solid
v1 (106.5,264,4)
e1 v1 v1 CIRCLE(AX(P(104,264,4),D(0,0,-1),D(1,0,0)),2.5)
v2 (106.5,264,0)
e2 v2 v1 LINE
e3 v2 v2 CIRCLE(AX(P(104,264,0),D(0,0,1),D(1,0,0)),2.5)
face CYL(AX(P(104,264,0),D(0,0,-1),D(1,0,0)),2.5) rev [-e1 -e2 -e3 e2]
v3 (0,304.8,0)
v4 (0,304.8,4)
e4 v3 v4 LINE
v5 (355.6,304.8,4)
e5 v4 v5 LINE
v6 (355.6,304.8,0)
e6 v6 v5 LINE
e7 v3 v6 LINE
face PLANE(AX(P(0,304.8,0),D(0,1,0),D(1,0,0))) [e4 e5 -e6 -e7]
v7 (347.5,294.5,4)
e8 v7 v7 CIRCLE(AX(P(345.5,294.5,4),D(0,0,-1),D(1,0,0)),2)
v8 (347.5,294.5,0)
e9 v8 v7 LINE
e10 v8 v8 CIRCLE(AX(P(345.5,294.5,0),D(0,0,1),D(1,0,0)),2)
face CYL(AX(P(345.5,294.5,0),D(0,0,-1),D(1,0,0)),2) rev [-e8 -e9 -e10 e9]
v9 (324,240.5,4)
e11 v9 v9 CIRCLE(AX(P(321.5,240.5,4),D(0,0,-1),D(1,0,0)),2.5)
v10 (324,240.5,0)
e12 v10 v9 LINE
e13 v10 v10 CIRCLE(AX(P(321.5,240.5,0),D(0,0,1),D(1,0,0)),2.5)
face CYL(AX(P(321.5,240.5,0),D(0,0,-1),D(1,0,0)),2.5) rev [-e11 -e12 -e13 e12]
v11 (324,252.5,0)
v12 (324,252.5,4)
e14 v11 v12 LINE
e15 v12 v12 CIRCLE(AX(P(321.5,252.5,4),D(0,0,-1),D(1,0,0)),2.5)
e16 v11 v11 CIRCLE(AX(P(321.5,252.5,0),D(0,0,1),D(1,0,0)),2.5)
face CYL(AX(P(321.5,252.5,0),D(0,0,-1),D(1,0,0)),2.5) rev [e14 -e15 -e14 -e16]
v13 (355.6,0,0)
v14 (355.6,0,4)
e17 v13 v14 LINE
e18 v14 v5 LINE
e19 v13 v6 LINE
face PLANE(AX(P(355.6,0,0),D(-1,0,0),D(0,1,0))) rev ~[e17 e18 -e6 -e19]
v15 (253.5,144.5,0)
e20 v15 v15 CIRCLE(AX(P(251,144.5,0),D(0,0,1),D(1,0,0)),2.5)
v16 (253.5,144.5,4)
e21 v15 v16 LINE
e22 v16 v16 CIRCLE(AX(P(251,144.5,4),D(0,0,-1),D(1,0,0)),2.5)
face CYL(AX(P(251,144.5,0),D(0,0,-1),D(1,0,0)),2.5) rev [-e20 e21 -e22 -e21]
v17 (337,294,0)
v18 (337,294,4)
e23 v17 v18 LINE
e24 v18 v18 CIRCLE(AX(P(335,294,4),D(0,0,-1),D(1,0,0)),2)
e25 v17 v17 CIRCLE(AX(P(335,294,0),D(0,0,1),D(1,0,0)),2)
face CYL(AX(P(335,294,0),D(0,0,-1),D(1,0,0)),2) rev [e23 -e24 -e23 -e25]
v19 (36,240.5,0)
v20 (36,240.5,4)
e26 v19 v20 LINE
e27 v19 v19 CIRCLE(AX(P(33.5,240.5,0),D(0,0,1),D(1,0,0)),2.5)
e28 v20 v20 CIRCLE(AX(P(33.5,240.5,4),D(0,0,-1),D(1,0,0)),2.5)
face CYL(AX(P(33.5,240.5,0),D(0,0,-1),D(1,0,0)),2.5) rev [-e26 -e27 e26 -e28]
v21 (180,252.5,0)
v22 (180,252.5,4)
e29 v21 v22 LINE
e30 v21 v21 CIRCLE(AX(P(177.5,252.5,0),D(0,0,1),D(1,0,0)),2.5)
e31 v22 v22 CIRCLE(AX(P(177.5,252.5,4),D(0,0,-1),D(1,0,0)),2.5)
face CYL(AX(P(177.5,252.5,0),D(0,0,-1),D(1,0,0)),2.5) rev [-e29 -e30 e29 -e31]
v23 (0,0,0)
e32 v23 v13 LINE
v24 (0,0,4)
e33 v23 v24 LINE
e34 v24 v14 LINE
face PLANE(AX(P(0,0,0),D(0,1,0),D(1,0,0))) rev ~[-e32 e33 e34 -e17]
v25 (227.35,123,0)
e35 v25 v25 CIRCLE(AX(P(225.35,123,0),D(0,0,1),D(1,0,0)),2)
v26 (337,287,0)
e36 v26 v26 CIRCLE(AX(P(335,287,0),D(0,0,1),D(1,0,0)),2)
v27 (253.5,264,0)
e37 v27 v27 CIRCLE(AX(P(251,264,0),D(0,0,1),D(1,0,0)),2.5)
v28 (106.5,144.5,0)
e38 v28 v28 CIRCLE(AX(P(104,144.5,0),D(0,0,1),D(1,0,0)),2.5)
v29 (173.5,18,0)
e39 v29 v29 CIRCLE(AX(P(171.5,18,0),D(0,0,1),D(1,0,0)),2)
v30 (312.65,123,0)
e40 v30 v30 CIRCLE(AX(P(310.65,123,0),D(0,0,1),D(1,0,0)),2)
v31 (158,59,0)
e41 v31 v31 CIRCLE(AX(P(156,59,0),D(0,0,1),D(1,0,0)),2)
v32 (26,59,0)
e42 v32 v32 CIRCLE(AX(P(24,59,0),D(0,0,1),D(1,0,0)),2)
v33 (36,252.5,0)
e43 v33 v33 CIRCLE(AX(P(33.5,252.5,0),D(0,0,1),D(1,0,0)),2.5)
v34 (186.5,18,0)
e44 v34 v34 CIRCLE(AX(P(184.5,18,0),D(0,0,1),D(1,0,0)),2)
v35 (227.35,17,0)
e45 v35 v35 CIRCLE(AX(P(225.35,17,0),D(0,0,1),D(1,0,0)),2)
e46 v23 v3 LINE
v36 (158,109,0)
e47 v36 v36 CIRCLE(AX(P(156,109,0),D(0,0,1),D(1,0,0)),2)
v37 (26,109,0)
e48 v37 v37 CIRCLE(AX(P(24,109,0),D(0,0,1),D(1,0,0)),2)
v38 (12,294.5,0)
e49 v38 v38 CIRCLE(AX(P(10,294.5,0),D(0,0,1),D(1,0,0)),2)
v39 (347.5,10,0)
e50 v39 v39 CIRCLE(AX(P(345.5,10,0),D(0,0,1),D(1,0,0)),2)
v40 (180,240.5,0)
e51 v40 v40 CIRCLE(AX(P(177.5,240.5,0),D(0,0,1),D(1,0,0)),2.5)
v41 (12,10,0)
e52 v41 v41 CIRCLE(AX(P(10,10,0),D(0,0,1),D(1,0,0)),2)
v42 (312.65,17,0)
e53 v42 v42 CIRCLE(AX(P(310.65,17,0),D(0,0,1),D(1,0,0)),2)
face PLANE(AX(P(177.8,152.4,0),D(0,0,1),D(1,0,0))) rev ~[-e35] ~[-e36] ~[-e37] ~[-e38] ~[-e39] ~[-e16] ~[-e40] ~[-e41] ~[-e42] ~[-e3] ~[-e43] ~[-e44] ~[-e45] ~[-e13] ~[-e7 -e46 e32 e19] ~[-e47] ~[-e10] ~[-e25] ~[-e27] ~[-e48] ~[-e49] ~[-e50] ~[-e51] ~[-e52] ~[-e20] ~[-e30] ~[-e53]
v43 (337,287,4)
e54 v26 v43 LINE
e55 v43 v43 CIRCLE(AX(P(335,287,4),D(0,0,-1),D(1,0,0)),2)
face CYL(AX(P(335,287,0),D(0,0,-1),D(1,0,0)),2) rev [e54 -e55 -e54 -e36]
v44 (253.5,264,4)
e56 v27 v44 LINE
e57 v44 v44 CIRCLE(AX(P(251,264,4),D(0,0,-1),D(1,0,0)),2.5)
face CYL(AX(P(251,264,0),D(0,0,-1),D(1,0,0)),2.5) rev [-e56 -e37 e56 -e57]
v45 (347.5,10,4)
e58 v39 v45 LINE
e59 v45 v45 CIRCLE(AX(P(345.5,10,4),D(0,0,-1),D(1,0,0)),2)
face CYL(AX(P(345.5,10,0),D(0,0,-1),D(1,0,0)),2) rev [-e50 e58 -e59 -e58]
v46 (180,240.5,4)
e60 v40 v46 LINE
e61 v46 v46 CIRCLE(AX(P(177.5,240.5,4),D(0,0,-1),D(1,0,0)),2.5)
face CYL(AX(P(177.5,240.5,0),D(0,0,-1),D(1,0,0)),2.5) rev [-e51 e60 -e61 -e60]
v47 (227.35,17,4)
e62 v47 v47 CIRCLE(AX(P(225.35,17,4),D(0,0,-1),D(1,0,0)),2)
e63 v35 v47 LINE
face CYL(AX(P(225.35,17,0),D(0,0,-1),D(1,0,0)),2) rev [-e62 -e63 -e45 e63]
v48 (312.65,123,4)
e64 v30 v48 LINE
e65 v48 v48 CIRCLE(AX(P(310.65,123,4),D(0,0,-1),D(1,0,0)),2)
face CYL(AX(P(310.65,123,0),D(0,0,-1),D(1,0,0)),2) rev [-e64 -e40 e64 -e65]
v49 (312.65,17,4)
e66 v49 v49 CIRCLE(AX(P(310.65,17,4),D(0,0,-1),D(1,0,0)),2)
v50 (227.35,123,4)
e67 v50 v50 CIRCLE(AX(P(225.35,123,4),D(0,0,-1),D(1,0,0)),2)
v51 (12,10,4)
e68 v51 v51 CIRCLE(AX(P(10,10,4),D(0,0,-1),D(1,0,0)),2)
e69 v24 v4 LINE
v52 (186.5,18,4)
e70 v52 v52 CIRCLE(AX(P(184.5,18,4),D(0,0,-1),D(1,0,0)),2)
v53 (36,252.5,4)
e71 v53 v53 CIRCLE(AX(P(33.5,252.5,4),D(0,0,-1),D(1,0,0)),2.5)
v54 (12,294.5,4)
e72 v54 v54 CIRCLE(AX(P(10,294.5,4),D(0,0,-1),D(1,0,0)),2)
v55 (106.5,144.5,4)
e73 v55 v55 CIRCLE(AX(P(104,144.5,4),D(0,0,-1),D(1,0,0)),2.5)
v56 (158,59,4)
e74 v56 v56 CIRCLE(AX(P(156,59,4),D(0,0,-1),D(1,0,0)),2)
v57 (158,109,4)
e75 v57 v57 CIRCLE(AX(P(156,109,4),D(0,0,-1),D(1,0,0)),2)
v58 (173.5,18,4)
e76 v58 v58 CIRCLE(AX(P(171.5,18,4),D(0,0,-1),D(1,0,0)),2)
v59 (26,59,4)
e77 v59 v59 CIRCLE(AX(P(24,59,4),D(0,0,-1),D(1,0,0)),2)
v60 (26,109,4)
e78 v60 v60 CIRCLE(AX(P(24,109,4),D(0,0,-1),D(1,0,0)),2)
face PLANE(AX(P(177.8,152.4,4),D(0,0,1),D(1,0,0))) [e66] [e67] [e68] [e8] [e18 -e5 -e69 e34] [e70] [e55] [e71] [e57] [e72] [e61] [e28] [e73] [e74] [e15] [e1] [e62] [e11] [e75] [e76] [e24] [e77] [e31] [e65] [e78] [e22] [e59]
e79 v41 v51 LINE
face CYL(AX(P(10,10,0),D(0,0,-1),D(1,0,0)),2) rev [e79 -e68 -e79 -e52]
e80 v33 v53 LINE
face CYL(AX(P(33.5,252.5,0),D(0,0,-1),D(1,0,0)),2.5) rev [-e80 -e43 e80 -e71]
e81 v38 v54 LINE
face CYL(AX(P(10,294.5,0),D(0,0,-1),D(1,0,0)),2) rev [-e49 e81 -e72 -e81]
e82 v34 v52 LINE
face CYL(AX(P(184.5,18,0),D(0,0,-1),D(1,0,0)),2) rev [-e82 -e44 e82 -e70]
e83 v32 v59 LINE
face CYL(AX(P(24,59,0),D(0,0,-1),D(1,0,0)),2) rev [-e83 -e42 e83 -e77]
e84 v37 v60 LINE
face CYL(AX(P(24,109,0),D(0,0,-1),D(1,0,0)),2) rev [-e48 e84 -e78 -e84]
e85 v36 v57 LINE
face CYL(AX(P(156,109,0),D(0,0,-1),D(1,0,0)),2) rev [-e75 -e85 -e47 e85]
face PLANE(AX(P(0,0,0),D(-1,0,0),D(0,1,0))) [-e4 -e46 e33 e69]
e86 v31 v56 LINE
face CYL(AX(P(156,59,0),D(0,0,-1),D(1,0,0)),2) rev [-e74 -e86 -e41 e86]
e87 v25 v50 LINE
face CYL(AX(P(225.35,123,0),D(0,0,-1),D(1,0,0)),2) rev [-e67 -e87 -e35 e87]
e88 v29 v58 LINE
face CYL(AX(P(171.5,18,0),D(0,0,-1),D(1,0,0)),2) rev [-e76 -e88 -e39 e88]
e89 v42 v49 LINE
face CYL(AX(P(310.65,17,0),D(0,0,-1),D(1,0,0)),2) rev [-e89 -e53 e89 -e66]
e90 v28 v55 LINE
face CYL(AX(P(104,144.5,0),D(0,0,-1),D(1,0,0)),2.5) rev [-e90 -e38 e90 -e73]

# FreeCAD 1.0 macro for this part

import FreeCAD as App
import Part
import Sketcher

V = App.Vector

doc = App.newDocument("Part")
body = doc.addObject("PartDesign::Body", "Body")

# Sketch on XY plane
sketch1 = body.newObject("Sketcher::SketchObject", "Sketch")
sketch1.AttachmentSupport = (doc.getObject("XY_Plane"), [""])
sketch1.MapMode = "FlatFace"
sketch1.addGeometry(Part.Circle(V(335, 287, 0), V(0, 0, 1), 2), False)
sketch1.addConstraint(Sketcher.Constraint("Diameter", 0, 4.0))
sketch1.addConstraint(Sketcher.Constraint("DistanceX", -1, 1, 0, 3, 335.0))
sketch1.addConstraint(Sketcher.Constraint("DistanceY", -1, 1, 0, 3, 287.0))
pad1 = body.newObject("PartDesign::Pad", "Pad")
pad1.Profile = sketch1
pad1.Length = 10
body2 = doc.addObject("PartDesign::Body", "Body001")
body2.AllowCompound = True

# Sketch on XY plane
sketch2 = body2.newObject("Sketcher::SketchObject", "Sketch001")
sketch2.AttachmentSupport = (doc.getObject("XY_Plane001"), [""])
sketch2.MapMode = "FlatFace"
sketch2.addGeometry(Part.Circle(V(335, 294, 0), V(0, 0, 1), 2), False)
sketch2.addConstraint(Sketcher.Constraint("Diameter", 0, 4.0))
sketch2.addConstraint(Sketcher.Constraint("DistanceX", -1, 1, 0, 3, 335.0))
sketch2.addConstraint(Sketcher.Constraint("DistanceY", -1, 1, 0, 3, 294.0))
pad2 = body2.newObject("PartDesign::Pad", "Pad001")
pad2.Profile = sketch2
pad2.Length = 10
doc.recompute()

boolean = body2.newObject("PartDesign::Boolean", "Boolean")
boolean.Type = "Fuse"
boolean.addObjects([body])
body3 = doc.addObject("PartDesign::Body", "Body002")

# Sketch on XY plane
sketch3 = body3.newObject("Sketcher::SketchObject", "Sketch002")
sketch3.AttachmentSupport = (doc.getObject("XY_Plane002"), [""])
sketch3.MapMode = "FlatFace"
sketch3.addGeometry(Part.Circle(V(10, 294.5, 0), V(0, 0, 1), 2), False)
sketch3.addConstraint(Sketcher.Constraint("Diameter", 0, 4.0))
sketch3.addConstraint(Sketcher.Constraint("DistanceX", -1, 1, 0, 3, 10.0))
sketch3.addConstraint(Sketcher.Constraint("DistanceY", -1, 1, 0, 3, 294.5))
pad3 = body3.newObject("PartDesign::Pad", "Pad002")
pad3.Profile = sketch3
pad3.Length = 10
body4 = doc.addObject("PartDesign::Body", "Body003")

# Sketch on XY plane
sketch4 = body4.newObject("Sketcher::SketchObject", "Sketch003")
sketch4.AttachmentSupport = (doc.getObject("XY_Plane003"), [""])
sketch4.MapMode = "FlatFace"
sketch4.addGeometry(Part.Circle(V(345.5, 294.5, 0), V(0, 0, 1), 2), False)
sketch4.addConstraint(Sketcher.Constraint("Diameter", 0, 4.0))
sketch4.addConstraint(Sketcher.Constraint("DistanceX", -1, 1, 0, 3, 345.5))
sketch4.addConstraint(Sketcher.Constraint("DistanceY", -1, 1, 0, 3, 294.5))
pad4 = body4.newObject("PartDesign::Pad", "Pad003")
pad4.Profile = sketch4
pad4.Length = 10
body5 = doc.addObject("PartDesign::Body", "Body004")

# Sketch on XY plane
sketch5 = body5.newObject("Sketcher::SketchObject", "Sketch004")
sketch5.AttachmentSupport = (doc.getObject("XY_Plane004"), [""])
sketch5.MapMode = "FlatFace"
sketch5.addGeometry(Part.Circle(V(345.5, 10, 0), V(0, 0, 1), 2), False)
sketch5.addConstraint(Sketcher.Constraint("Diameter", 0, 4.0))
sketch5.addConstraint(Sketcher.Constraint("DistanceY", -1, 1, 0, 3, 10.0))
sketch5.addConstraint(Sketcher.Constraint("DistanceX", -1, 1, 0, 3, 345.5))
pad5 = body5.newObject("PartDesign::Pad", "Pad004")
pad5.Profile = sketch5
pad5.Length = 10
body6 = doc.addObject("PartDesign::Body", "Body005")
body6.AllowCompound = True

# Sketch on XY plane
sketch6 = body6.newObject("Sketcher::SketchObject", "Sketch005")
sketch6.AttachmentSupport = (doc.getObject("XY_Plane005"), [""])
sketch6.MapMode = "FlatFace"
sketch6.addGeometry(Part.Circle(V(10, 10, 0), V(0, 0, 1), 2), False)
sketch6.addConstraint(Sketcher.Constraint("Diameter", 0, 4.0))
sketch6.addConstraint(Sketcher.Constraint("DistanceX", -1, 1, 0, 3, 10.0))
sketch6.addConstraint(Sketcher.Constraint("DistanceY", -1, 1, 0, 3, 10.0))
pad6 = body6.newObject("PartDesign::Pad", "Pad005")
pad6.Profile = sketch6
pad6.Length = 10
doc.recompute()

boolean2 = body6.newObject("PartDesign::Boolean", "Boolean001")
boolean2.Type = "Fuse"
boolean2.addObjects([body3])
doc.recompute()

boolean3 = body6.newObject("PartDesign::Boolean", "Boolean002")
boolean3.Type = "Fuse"
boolean3.addObjects([body4])
doc.recompute()

boolean4 = body6.newObject("PartDesign::Boolean", "Boolean003")
boolean4.Type = "Fuse"
boolean4.addObjects([body5])
body7 = doc.addObject("PartDesign::Body", "Body006")

# Sketch on XY plane
sketch7 = body7.newObject("Sketcher::SketchObject", "Sketch006")
sketch7.AttachmentSupport = (doc.getObject("XY_Plane006"), [""])
sketch7.MapMode = "FlatFace"
sketch7.addGeometry(Part.Circle(V(184.5, 18, 0), V(0, 0, 1), 2), False)
sketch7.addConstraint(Sketcher.Constraint("Diameter", 0, 4.0))
sketch7.addConstraint(Sketcher.Constraint("DistanceY", -1, 1, 0, 3, 18.0))
sketch7.addConstraint(Sketcher.Constraint("DistanceX", -1, 1, 0, 3, 184.5))
pad7 = body7.newObject("PartDesign::Pad", "Pad006")
pad7.Profile = sketch7
pad7.Length = 10
body8 = doc.addObject("PartDesign::Body", "Body007")

# Sketch on XY plane
sketch8 = body8.newObject("Sketcher::SketchObject", "Sketch007")
sketch8.AttachmentSupport = (doc.getObject("XY_Plane007"), [""])
sketch8.MapMode = "FlatFace"
sketch8.addGeometry(Part.Circle(V(156, 59, 0), V(0, 0, 1), 2), False)
sketch8.addConstraint(Sketcher.Constraint("Diameter", 0, 4.0))
sketch8.addConstraint(Sketcher.Constraint("DistanceX", -1, 1, 0, 3, 156.0))
sketch8.addConstraint(Sketcher.Constraint("DistanceY", -1, 1, 0, 3, 59.0))
pad8 = body8.newObject("PartDesign::Pad", "Pad007")
pad8.Profile = sketch8
pad8.Length = 10
body9 = doc.addObject("PartDesign::Body", "Body008")

# Sketch on XY plane
sketch9 = body9.newObject("Sketcher::SketchObject", "Sketch008")
sketch9.AttachmentSupport = (doc.getObject("XY_Plane008"), [""])
sketch9.MapMode = "FlatFace"
sketch9.addGeometry(Part.Circle(V(225.3, 17, 0), V(0, 0, 1), 2), False)
sketch9.addConstraint(Sketcher.Constraint("Diameter", 0, 4.0))
sketch9.addConstraint(Sketcher.Constraint("DistanceY", -1, 1, 0, 3, 17.0))
sketch9.addConstraint(Sketcher.Constraint("DistanceX", -1, 1, 0, 3, 225.35))
pad9 = body9.newObject("PartDesign::Pad", "Pad008")
pad9.Profile = sketch9
pad9.Length = 10
body10 = doc.addObject("PartDesign::Body", "Body009")

# Sketch on XY plane
sketch10 = body10.newObject("Sketcher::SketchObject", "Sketch009")
sketch10.AttachmentSupport = (doc.getObject("XY_Plane009"), [""])
sketch10.MapMode = "FlatFace"
sketch10.addGeometry(Part.Circle(V(24, 109, 0), V(0, 0, 1), 2), False)
sketch10.addConstraint(Sketcher.Constraint("Diameter", 0, 4.0))
sketch10.addConstraint(Sketcher.Constraint("DistanceX", -1, 1, 0, 3, 24.0))
sketch10.addConstraint(Sketcher.Constraint("DistanceY", -1, 1, 0, 3, 109.0))
pad10 = body10.newObject("PartDesign::Pad", "Pad009")
pad10.Profile = sketch10
pad10.Length = 10
body11 = doc.addObject("PartDesign::Body", "Body010")

# Sketch on XY plane
sketch11 = body11.newObject("Sketcher::SketchObject", "Sketch010")
sketch11.AttachmentSupport = (doc.getObject("XY_Plane010"), [""])
sketch11.MapMode = "FlatFace"
sketch11.addGeometry(Part.Circle(V(156, 109, 0), V(0, 0, 1), 2), False)
sketch11.addConstraint(Sketcher.Constraint("Diameter", 0, 4.0))
sketch11.addConstraint(Sketcher.Constraint("DistanceX", -1, 1, 0, 3, 156.0))
sketch11.addConstraint(Sketcher.Constraint("DistanceY", -1, 1, 0, 3, 109.0))
pad11 = body11.newObject("PartDesign::Pad", "Pad010")
pad11.Profile = sketch11
pad11.Length = 10
body12 = doc.addObject("PartDesign::Body", "Body011")

# Sketch on XY plane
sketch12 = body12.newObject("Sketcher::SketchObject", "Sketch011")
sketch12.AttachmentSupport = (doc.getObject("XY_Plane011"), [""])
sketch12.MapMode = "FlatFace"
sketch12.addGeometry(Part.Circle(V(225.3, 123, 0), V(0, 0, 1), 2), False)
sketch12.addConstraint(Sketcher.Constraint("Diameter", 0, 4.0))
sketch12.addConstraint(Sketcher.Constraint("DistanceY", -1, 1, 0, 3, 123.0))
sketch12.addConstraint(Sketcher.Constraint("DistanceX", -1, 1, 0, 3, 225.35))
pad12 = body12.newObject("PartDesign::Pad", "Pad011")
pad12.Profile = sketch12
pad12.Length = 10
body13 = doc.addObject("PartDesign::Body", "Body012")

# Sketch on XY plane
sketch13 = body13.newObject("Sketcher::SketchObject", "Sketch012")
sketch13.AttachmentSupport = (doc.getObject("XY_Plane012"), [""])
sketch13.MapMode = "FlatFace"
sketch13.addGeometry(Part.Circle(V(310.6, 17, 0), V(0, 0, 1), 2), False)
sketch13.addConstraint(Sketcher.Constraint("Diameter", 0, 4.0))
sketch13.addConstraint(Sketcher.Constraint("DistanceY", -1, 1, 0, 3, 17.0))
sketch13.addConstraint(Sketcher.Constraint("DistanceX", -1, 1, 0, 3, 310.65))
pad13 = body13.newObject("PartDesign::Pad", "Pad012")
pad13.Profile = sketch13
pad13.Length = 10
body14 = doc.addObject("PartDesign::Body", "Body013")

# Sketch on XY plane
sketch14 = body14.newObject("Sketcher::SketchObject", "Sketch013")
sketch14.AttachmentSupport = (doc.getObject("XY_Plane013"), [""])
sketch14.MapMode = "FlatFace"
sketch14.addGeometry(Part.Circle(V(310.6, 123, 0), V(0, 0, 1), 2), False)
sketch14.addConstraint(Sketcher.Constraint("Diameter", 0, 4.0))
sketch14.addConstraint(Sketcher.Constraint("DistanceY", -1, 1, 0, 3, 123.0))
sketch14.addConstraint(Sketcher.Constraint("DistanceX", -1, 1, 0, 3, 310.65))
pad14 = body14.newObject("PartDesign::Pad", "Pad013")
pad14.Profile = sketch14
pad14.Length = 10
body15 = doc.addObject("PartDesign::Body", "Body014")

# Sketch on XY plane
sketch15 = body15.newObject("Sketcher::SketchObject", "Sketch014")
sketch15.AttachmentSupport = (doc.getObject("XY_Plane014"), [""])
sketch15.MapMode = "FlatFace"
sketch15.addGeometry(Part.Circle(V(171.5, 18, 0), V(0, 0, 1), 2), False)
sketch15.addConstraint(Sketcher.Constraint("Diameter", 0, 4.0))
sketch15.addConstraint(Sketcher.Constraint("DistanceY", -1, 1, 0, 3, 18.0))
sketch15.addConstraint(Sketcher.Constraint("DistanceX", -1, 1, 0, 3, 171.5))
pad15 = body15.newObject("PartDesign::Pad", "Pad014")
pad15.Profile = sketch15
pad15.Length = 10
body16 = doc.addObject("PartDesign::Body", "Body015")
body16.AllowCompound = True

# Sketch on XY plane
sketch16 = body16.newObject("Sketcher::SketchObject", "Sketch015")
sketch16.AttachmentSupport = (doc.getObject("XY_Plane015"), [""])
sketch16.MapMode = "FlatFace"
sketch16.addGeometry(Part.Circle(V(24, 59, 0), V(0, 0, 1), 2), False)
sketch16.addConstraint(Sketcher.Constraint("Diameter", 0, 4.0))
sketch16.addConstraint(Sketcher.Constraint("DistanceX", -1, 1, 0, 3, 24.0))
sketch16.addConstraint(Sketcher.Constraint("DistanceY", -1, 1, 0, 3, 59.0))
pad16 = body16.newObject("PartDesign::Pad", "Pad015")
pad16.Profile = sketch16
pad16.Length = 10
doc.recompute()

boolean5 = body16.newObject("PartDesign::Boolean", "Boolean004")
boolean5.Type = "Fuse"
boolean5.addObjects([body7])
doc.recompute()

boolean6 = body16.newObject("PartDesign::Boolean", "Boolean005")
boolean6.Type = "Fuse"
boolean6.addObjects([body8])
doc.recompute()

boolean7 = body16.newObject("PartDesign::Boolean", "Boolean006")
boolean7.Type = "Fuse"
boolean7.addObjects([body9])
doc.recompute()

boolean8 = body16.newObject("PartDesign::Boolean", "Boolean007")
boolean8.Type = "Fuse"
boolean8.addObjects([body10])
doc.recompute()

boolean9 = body16.newObject("PartDesign::Boolean", "Boolean008")
boolean9.Type = "Fuse"
boolean9.addObjects([body11])
doc.recompute()

boolean10 = body16.newObject("PartDesign::Boolean", "Boolean009")
boolean10.Type = "Fuse"
boolean10.addObjects([body12])
doc.recompute()

boolean11 = body16.newObject("PartDesign::Boolean", "Boolean010")
boolean11.Type = "Fuse"
boolean11.addObjects([body13])
doc.recompute()

boolean12 = body16.newObject("PartDesign::Boolean", "Boolean011")
boolean12.Type = "Fuse"
boolean12.addObjects([body14])
doc.recompute()

boolean13 = body16.newObject("PartDesign::Boolean", "Boolean012")
boolean13.Type = "Fuse"
boolean13.addObjects([body15])
body17 = doc.addObject("PartDesign::Body", "Body016")

# Sketch on XY plane
sketch17 = body17.newObject("Sketcher::SketchObject", "Sketch016")
sketch17.AttachmentSupport = (doc.getObject("XY_Plane016"), [""])
sketch17.MapMode = "FlatFace"
sketch17.addGeometry(Part.Circle(V(105, 264, 0), V(0, 0, 1), 2.5), False)
sketch17.addConstraint(Sketcher.Constraint("Diameter", 0, 5.0))
sketch17.addConstraint(Sketcher.Constraint("DistanceX", -1, 1, 0, 3, 105.0))
sketch17.addConstraint(Sketcher.Constraint("DistanceY", -1, 1, 0, 3, 264.0))
pad17 = body17.newObject("PartDesign::Pad", "Pad016")
pad17.Profile = sketch17
pad17.Length = 14
body18 = doc.addObject("PartDesign::Body", "Body017")
body18.AllowCompound = True

# Sketch on XY plane
sketch18 = body18.newObject("Sketcher::SketchObject", "Sketch017")
sketch18.AttachmentSupport = (doc.getObject("XY_Plane017"), [""])
sketch18.MapMode = "FlatFace"
sketch18.addGeometry(Part.Circle(V(105, 144.5, 0), V(0, 0, 1), 2.5), False)
sketch18.addConstraint(Sketcher.Constraint("Diameter", 0, 5.0))
sketch18.addConstraint(Sketcher.Constraint("DistanceX", -1, 1, 0, 3, 105.0))
sketch18.addConstraint(Sketcher.Constraint("DistanceY", -1, 1, 0, 3, 144.5))
pad18 = body18.newObject("PartDesign::Pad", "Pad017")
pad18.Profile = sketch18
pad18.Length = 14
doc.recompute()

boolean14 = body18.newObject("PartDesign::Boolean", "Boolean013")
boolean14.Type = "Fuse"
boolean14.addObjects([body17])
body19 = doc.addObject("PartDesign::Body", "Body018")
body19.AllowCompound = True
doc.recompute()

body18.Placement = App.Placement(V(146, 0, 0), App.Rotation(V(0, 0, 1), 0))
boolean15 = body19.newObject("PartDesign::Boolean", "Boolean014")
boolean15.Type = "Fuse"
boolean15.addObjects([body18])
body20 = doc.addObject("PartDesign::Body", "Body019")

# Sketch on XY plane
sketch19 = body20.newObject("Sketcher::SketchObject", "Sketch018")
sketch19.AttachmentSupport = (doc.getObject("XY_Plane019"), [""])
sketch19.MapMode = "FlatFace"
sketch19.addGeometry(Part.Circle(V(105, 264, 0), V(0, 0, 1), 2.5), False)
sketch19.addConstraint(Sketcher.Constraint("Diameter", 0, 5.0))
sketch19.addConstraint(Sketcher.Constraint("DistanceX", -1, 1, 0, 3, 105.0))
sketch19.addConstraint(Sketcher.Constraint("DistanceY", -1, 1, 0, 3, 264.0))
pad19 = body20.newObject("PartDesign::Pad", "Pad018")
pad19.Profile = sketch19
pad19.Length = 14
body21 = doc.addObject("PartDesign::Body", "Body020")
body21.AllowCompound = True

# Sketch on XY plane
sketch20 = body21.newObject("Sketcher::SketchObject", "Sketch019")
sketch20.AttachmentSupport = (doc.getObject("XY_Plane020"), [""])
sketch20.MapMode = "FlatFace"
sketch20.addGeometry(Part.Circle(V(105, 144.5, 0), V(0, 0, 1), 2.5), False)
sketch20.addConstraint(Sketcher.Constraint("Diameter", 0, 5.0))
sketch20.addConstraint(Sketcher.Constraint("DistanceX", -1, 1, 0, 3, 105.0))
sketch20.addConstraint(Sketcher.Constraint("DistanceY", -1, 1, 0, 3, 144.5))
pad20 = body21.newObject("PartDesign::Pad", "Pad019")
pad20.Profile = sketch20
pad20.Length = 14
doc.recompute()

boolean16 = body21.newObject("PartDesign::Boolean", "Boolean015")
boolean16.Type = "Fuse"
boolean16.addObjects([body20])
body22 = doc.addObject("PartDesign::Body", "Body021")
body22.AllowCompound = True
doc.recompute()

body21.Placement = App.Placement(V(-1, 0, 0), App.Rotation(V(0, 0, 1), 0))
boolean17 = body22.newObject("PartDesign::Boolean", "Boolean016")
boolean17.Type = "Fuse"
boolean17.addObjects([body21])
doc.recompute()

boolean18 = body22.newObject("PartDesign::Boolean", "Boolean017")
boolean18.Type = "Fuse"
boolean18.addObjects([body19])
body23 = doc.addObject("PartDesign::Body", "Body022")

# Sketch on XY plane
sketch21 = body23.newObject("Sketcher::SketchObject", "Sketch020")
sketch21.AttachmentSupport = (doc.getObject("XY_Plane022"), [""])
sketch21.MapMode = "FlatFace"
sketch21.addGeometry(Part.Circle(V(177.5, 240.5, 0), V(0, 0, 1), 2.5), False)
sketch21.addConstraint(Sketcher.Constraint("Diameter", 0, 5.0))
sketch21.addConstraint(Sketcher.Constraint("DistanceX", -1, 1, 0, 3, 177.5))
sketch21.addConstraint(Sketcher.Constraint("DistanceY", -1, 1, 0, 3, 240.5))
pad21 = body23.newObject("PartDesign::Pad", "Pad020")
pad21.Profile = sketch21
pad21.Length = 10
body24 = doc.addObject("PartDesign::Body", "Body023")
body24.AllowCompound = True

# Sketch on XY plane
sketch22 = body24.newObject("Sketcher::SketchObject", "Sketch021")
sketch22.AttachmentSupport = (doc.getObject("XY_Plane023"), [""])
sketch22.MapMode = "FlatFace"
sketch22.addGeometry(Part.Circle(V(177.5, 252.5, 0), V(0, 0, 1), 2.5), False)
sketch22.addConstraint(Sketcher.Constraint("Diameter", 0, 5.0))
sketch22.addConstraint(Sketcher.Constraint("DistanceX", -1, 1, 0, 3, 177.5))
sketch22.addConstraint(Sketcher.Constraint("DistanceY", -1, 1, 0, 3, 252.5))
pad22 = body24.newObject("PartDesign::Pad", "Pad021")
pad22.Profile = sketch22
pad22.Length = 10
doc.recompute()

boolean19 = body24.newObject("PartDesign::Boolean", "Boolean018")
boolean19.Type = "Fuse"
boolean19.addObjects([body23])
body25 = doc.addObject("PartDesign::Body", "Body024")
body25.AllowCompound = True
doc.recompute()

body24.Placement = App.Placement(V(144, 0, 0), App.Rotation(V(0, 0, 1), 0))
boolean20 = body25.newObject("PartDesign::Boolean", "Boolean019")
boolean20.Type = "Fuse"
boolean20.addObjects([body24])
body26 = doc.addObject("PartDesign::Body", "Body025")

# Sketch on XY plane
sketch23 = body26.newObject("Sketcher::SketchObject", "Sketch022")
sketch23.AttachmentSupport = (doc.getObject("XY_Plane025"), [""])
sketch23.MapMode = "FlatFace"
sketch23.addGeometry(Part.Circle(V(177.5, 240.5, 0), V(0, 0, 1), 2.5), False)
sketch23.addConstraint(Sketcher.Constraint("Diameter", 0, 5.0))
sketch23.addConstraint(Sketcher.Constraint("DistanceX", -1, 1, 0, 3, 177.5))
sketch23.addConstraint(Sketcher.Constraint("DistanceY", -1, 1, 0, 3, 240.5))
pad23 = body26.newObject("PartDesign::Pad", "Pad022")
pad23.Profile = sketch23
pad23.Length = 10
body27 = doc.addObject("PartDesign::Body", "Body026")
body27.AllowCompound = True

# Sketch on XY plane
sketch24 = body27.newObject("Sketcher::SketchObject", "Sketch023")
sketch24.AttachmentSupport = (doc.getObject("XY_Plane026"), [""])
sketch24.MapMode = "FlatFace"
sketch24.addGeometry(Part.Circle(V(177.5, 252.5, 0), V(0, 0, 1), 2.5), False)
sketch24.addConstraint(Sketcher.Constraint("Diameter", 0, 5.0))
sketch24.addConstraint(Sketcher.Constraint("DistanceX", -1, 1, 0, 3, 177.5))
sketch24.addConstraint(Sketcher.Constraint("DistanceY", -1, 1, 0, 3, 252.5))
pad24 = body27.newObject("PartDesign::Pad", "Pad023")
pad24.Profile = sketch24
pad24.Length = 10
doc.recompute()

boolean21 = body27.newObject("PartDesign::Boolean", "Boolean020")
boolean21.Type = "Fuse"
boolean21.addObjects([body26])
body28 = doc.addObject("PartDesign::Body", "Body027")
body28.AllowCompound = True
doc.recompute()

body27.Placement = App.Placement(V(-144, 0, 0), App.Rotation(V(0, 0, 1), 0))
boolean22 = body28.newObject("PartDesign::Boolean", "Boolean021")
boolean22.Type = "Fuse"
boolean22.addObjects([body27])
doc.recompute()

boolean23 = body28.newObject("PartDesign::Boolean", "Boolean022")
boolean23.Type = "Fuse"
boolean23.addObjects([body25])
body29 = doc.addObject("PartDesign::Body", "Body028")

# Sketch on XY plane
sketch25 = body29.newObject("Sketcher::SketchObject", "Sketch024")
sketch25.AttachmentSupport = (doc.getObject("XY_Plane028"), [""])
sketch25.MapMode = "FlatFace"
sketch25.addGeometry(Part.Circle(V(177.5, 240.5, 0), V(0, 0, 1), 2.5), False)
sketch25.addConstraint(Sketcher.Constraint("Diameter", 0, 5.0))
sketch25.addConstraint(Sketcher.Constraint("DistanceX", -1, 1, 0, 3, 177.5))
sketch25.addConstraint(Sketcher.Constraint("DistanceY", -1, 1, 0, 3, 240.5))
pad25 = body29.newObject("PartDesign::Pad", "Pad024")
pad25.Profile = sketch25
pad25.Length = 10
body30 = doc.addObject("PartDesign::Body", "Body029")
body30.AllowCompound = True

# Sketch on XY plane
sketch26 = body30.newObject("Sketcher::SketchObject", "Sketch025")
sketch26.AttachmentSupport = (doc.getObject("XY_Plane029"), [""])
sketch26.MapMode = "FlatFace"
sketch26.addGeometry(Part.Circle(V(177.5, 252.5, 0), V(0, 0, 1), 2.5), False)
sketch26.addConstraint(Sketcher.Constraint("Diameter", 0, 5.0))
sketch26.addConstraint(Sketcher.Constraint("DistanceX", -1, 1, 0, 3, 177.5))
sketch26.addConstraint(Sketcher.Constraint("DistanceY", -1, 1, 0, 3, 252.5))
pad26 = body30.newObject("PartDesign::Pad", "Pad025")
pad26.Profile = sketch26
pad26.Length = 10
doc.recompute()

boolean24 = body30.newObject("PartDesign::Boolean", "Boolean023")
boolean24.Type = "Fuse"
boolean24.addObjects([body29])
body31 = doc.addObject("PartDesign::Body", "Body030")

# Sketch on XY plane
sketch27 = body31.newObject("Sketcher::SketchObject", "Sketch026")
sketch27.AttachmentSupport = (doc.getObject("XY_Plane030"), [""])
sketch27.MapMode = "FlatFace"
sketch27.addGeometry(Part.LineSegment(V(0, 305, 0), V(0, 0, 0)), False)
sketch27.addGeometry(Part.LineSegment(V(0, 0, 0), V(356, 0, 0)), False)
sketch27.addGeometry(Part.LineSegment(V(356, 0, 0), V(356, 305, 0)), False)
sketch27.addGeometry(Part.LineSegment(V(356, 305, 0), V(0, 305, 0)), False)
sketch27.addConstraint(Sketcher.Constraint("Coincident", 0, 2, 1, 1))
sketch27.addConstraint(Sketcher.Constraint("Coincident", 1, 2, 2, 1))
sketch27.addConstraint(Sketcher.Constraint("Coincident", 2, 2, 3, 1))
sketch27.addConstraint(Sketcher.Constraint("Coincident", 3, 2, 0, 1))
sketch27.addConstraint(Sketcher.Constraint("Vertical", 0))
sketch27.addConstraint(Sketcher.Constraint("Horizontal", 1))
sketch27.addConstraint(Sketcher.Constraint("Vertical", 2))
sketch27.addConstraint(Sketcher.Constraint("Horizontal", 3))
sketch27.addConstraint(Sketcher.Constraint("Coincident", 0, 2, -1, 1))
sketch27.addConstraint(Sketcher.Constraint("DistanceX", 1, 1, 1, 2, 355.6))
sketch27.addConstraint(Sketcher.Constraint("DistanceY", 0, 2, 0, 1, 304.8))
pad27 = body31.newObject("PartDesign::Pad", "Pad026")
pad27.Profile = sketch27
pad27.Length = 4
doc.recompute()

boolean25 = body31.newObject("PartDesign::Boolean", "Boolean024")
boolean25.Type = "Cut"
boolean25.addObjects([body30])
doc.recompute()

boolean26 = body31.newObject("PartDesign::Boolean", "Boolean025")
boolean26.Type = "Cut"
boolean26.addObjects([body28])
doc.recompute()

boolean27 = body31.newObject("PartDesign::Boolean", "Boolean026")
boolean27.Type = "Cut"
boolean27.addObjects([body22])
doc.recompute()

boolean28 = body31.newObject("PartDesign::Boolean", "Boolean027")
boolean28.Type = "Cut"
boolean28.addObjects([body16])
doc.recompute()

boolean29 = body31.newObject("PartDesign::Boolean", "Boolean028")
boolean29.Type = "Cut"
boolean29.addObjects([body6])
doc.recompute()

boolean30 = body31.newObject("PartDesign::Boolean", "Boolean029")
boolean30.Type = "Cut"
boolean30.addObjects([body2])

doc.recompute()
